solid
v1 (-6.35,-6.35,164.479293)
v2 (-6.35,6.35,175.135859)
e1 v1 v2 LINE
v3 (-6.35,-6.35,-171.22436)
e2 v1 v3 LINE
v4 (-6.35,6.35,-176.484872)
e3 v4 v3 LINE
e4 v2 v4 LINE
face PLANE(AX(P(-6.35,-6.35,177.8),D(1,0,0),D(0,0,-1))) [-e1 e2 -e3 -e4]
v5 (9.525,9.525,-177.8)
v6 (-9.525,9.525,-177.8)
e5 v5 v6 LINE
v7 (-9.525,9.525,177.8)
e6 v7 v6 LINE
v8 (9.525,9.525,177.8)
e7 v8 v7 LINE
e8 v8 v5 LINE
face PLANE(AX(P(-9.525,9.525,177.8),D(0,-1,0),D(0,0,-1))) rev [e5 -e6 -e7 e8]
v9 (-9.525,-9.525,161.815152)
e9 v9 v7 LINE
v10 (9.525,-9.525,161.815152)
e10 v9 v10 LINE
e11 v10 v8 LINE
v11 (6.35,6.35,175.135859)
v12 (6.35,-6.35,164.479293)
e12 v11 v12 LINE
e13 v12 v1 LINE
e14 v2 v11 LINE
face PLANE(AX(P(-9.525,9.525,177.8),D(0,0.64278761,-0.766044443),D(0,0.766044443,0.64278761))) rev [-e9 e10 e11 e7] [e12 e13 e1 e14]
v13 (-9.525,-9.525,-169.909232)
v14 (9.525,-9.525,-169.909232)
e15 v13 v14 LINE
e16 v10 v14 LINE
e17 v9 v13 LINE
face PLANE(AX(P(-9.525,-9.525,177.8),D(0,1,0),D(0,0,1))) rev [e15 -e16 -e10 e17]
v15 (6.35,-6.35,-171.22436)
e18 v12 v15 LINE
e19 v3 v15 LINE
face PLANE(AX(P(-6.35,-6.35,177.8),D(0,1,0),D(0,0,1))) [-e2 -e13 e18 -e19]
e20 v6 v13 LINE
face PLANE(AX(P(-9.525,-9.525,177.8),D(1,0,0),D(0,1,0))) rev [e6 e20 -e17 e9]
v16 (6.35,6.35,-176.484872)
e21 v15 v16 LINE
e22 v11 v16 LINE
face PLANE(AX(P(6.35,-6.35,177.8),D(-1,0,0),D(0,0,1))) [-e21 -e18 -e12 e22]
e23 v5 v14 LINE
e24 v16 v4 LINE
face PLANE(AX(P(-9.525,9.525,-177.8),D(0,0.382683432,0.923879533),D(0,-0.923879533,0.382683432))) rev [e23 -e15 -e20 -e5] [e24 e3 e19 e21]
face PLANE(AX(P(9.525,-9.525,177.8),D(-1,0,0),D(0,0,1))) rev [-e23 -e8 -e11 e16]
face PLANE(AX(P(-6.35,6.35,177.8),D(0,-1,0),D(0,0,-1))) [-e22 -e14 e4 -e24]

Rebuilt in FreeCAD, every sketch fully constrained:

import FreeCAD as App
import Part
import Sketcher

V = App.Vector
Q = App.Units.Quantity


def add_polygon(sketch, points):
    """Adds a closed chain of lines whose ends are joined by coincident constraints."""
    first, n = sketch.GeometryCount, len(points)
    for a, b in zip(points, points[1:] + points[:1]):
        sketch.addGeometry(Part.LineSegment(App.Vector(*a, 0), App.Vector(*b, 0)), False)
    for i in range(n):
        sketch.addConstraint(Sketcher.Constraint("Coincident", first + i, 2, first + (i + 1) % n, 1))

doc = App.newDocument("Part")
body = doc.addObject("PartDesign::Body", "Body")

# Sketch on XY plane
sketch1 = doc.addObject("Sketcher::SketchObject", "Sketch")
body.addObject(sketch1)
sketch1.AttachmentSupport = (doc.XY_Plane, [""])
sketch1.MapMode = "FlatFace"
add_polygon(sketch1, [(-9.525, 9.525), (-9.525, -9.525), (9.525, -9.525), (9.525, 9.525)])  # lines 0-3
add_polygon(sketch1, [(6.35, -6.35), (-6.35, -6.35), (-6.35, 6.35), (6.35, 6.35)])  # lines 4-7
sketch1.addConstraint(Sketcher.Constraint("Vertical", 0))
sketch1.addConstraint(Sketcher.Constraint("Horizontal", 1))
sketch1.addConstraint(Sketcher.Constraint("Vertical", 2))
sketch1.addConstraint(Sketcher.Constraint("Horizontal", 3))
sketch1.addConstraint(Sketcher.Constraint("Horizontal", 4))
sketch1.addConstraint(Sketcher.Constraint("Vertical", 5))
sketch1.addConstraint(Sketcher.Constraint("Horizontal", 6))
sketch1.addConstraint(Sketcher.Constraint("Vertical", 7))
sketch1.addConstraint(Sketcher.Constraint("Symmetric", 0, 2, 2, 2, -1, 1))
sketch1.addConstraint(Sketcher.Constraint("Symmetric", 4, 2, 6, 2, -1, 1))
sketch1.addConstraint(Sketcher.Constraint("Equal", 3, 0))
sketch1.addConstraint(Sketcher.Constraint("Equal", 6, 5))
sketch1.addConstraint(Sketcher.Constraint("DistanceX", 4, 2, 4, 1, Q("0.5 in")))
sketch1.addConstraint(Sketcher.Constraint("DistanceX", 1, 1, 1, 2, Q("0.75 in")))
pad1 = doc.addObject("PartDesign::Pad", "Pad")
body.addObject(pad1)
pad1.Profile = sketch1
pad1.Length = Q("14 in")
pad1.Midplane = True

# Sketch on YZ plane
sketch2 = doc.addObject("Sketcher::SketchObject", "Sketch001")
body.addObject(sketch2)
sketch2.AttachmentSupport = (doc.YZ_Plane, [""])
sketch2.MapMode = "FlatFace"
sketch2.AttachmentOffset = App.Placement(V(0, 0, 0.375 * 25.4), App.Rotation())
add_polygon(sketch2, [(-9.525, 161.815152), (9.525, 177.8), (-9.525, 177.8)])  # lines 0-2
add_polygon(sketch2, [(9.525, -177.8), (-9.525, -169.909232), (-9.525, -177.8)])  # lines 3-5
sketch2.addConstraint(Sketcher.Constraint("Horizontal", 1))
sketch2.addConstraint(Sketcher.Constraint("Vertical", 2))
sketch2.addConstraint(Sketcher.Constraint("Vertical", 4))
sketch2.addConstraint(Sketcher.Constraint("Horizontal", 5))
sketch2.addConstraint(Sketcher.Constraint("Symmetric", 0, 2, 4, 2, -1, 1))
sketch2.addConstraint(Sketcher.Constraint("Vertical", 2, 2, 3, 2))
sketch2.addConstraint(Sketcher.Constraint("Vertical", 0, 2, 5, 2))
sketch2.addConstraint(Sketcher.Constraint("DistanceY", -1, 1, 0, 2, Q("7 in")))
sketch2.addConstraint(Sketcher.Constraint("Angle", 0, Q("40 deg")))
sketch2.addConstraint(Sketcher.Constraint("DistanceX", 1, 2, 1, 1, Q("0.75 in")))
sketch2.addConstraint(Sketcher.Constraint("Angle", 3, Q("157.5 deg")))
pocket1 = doc.addObject("PartDesign::Pocket", "Pocket")
body.addObject(pocket1)
pocket1.Profile = sketch2
pocket1.Type = "ThroughAll"

doc.recompute()
